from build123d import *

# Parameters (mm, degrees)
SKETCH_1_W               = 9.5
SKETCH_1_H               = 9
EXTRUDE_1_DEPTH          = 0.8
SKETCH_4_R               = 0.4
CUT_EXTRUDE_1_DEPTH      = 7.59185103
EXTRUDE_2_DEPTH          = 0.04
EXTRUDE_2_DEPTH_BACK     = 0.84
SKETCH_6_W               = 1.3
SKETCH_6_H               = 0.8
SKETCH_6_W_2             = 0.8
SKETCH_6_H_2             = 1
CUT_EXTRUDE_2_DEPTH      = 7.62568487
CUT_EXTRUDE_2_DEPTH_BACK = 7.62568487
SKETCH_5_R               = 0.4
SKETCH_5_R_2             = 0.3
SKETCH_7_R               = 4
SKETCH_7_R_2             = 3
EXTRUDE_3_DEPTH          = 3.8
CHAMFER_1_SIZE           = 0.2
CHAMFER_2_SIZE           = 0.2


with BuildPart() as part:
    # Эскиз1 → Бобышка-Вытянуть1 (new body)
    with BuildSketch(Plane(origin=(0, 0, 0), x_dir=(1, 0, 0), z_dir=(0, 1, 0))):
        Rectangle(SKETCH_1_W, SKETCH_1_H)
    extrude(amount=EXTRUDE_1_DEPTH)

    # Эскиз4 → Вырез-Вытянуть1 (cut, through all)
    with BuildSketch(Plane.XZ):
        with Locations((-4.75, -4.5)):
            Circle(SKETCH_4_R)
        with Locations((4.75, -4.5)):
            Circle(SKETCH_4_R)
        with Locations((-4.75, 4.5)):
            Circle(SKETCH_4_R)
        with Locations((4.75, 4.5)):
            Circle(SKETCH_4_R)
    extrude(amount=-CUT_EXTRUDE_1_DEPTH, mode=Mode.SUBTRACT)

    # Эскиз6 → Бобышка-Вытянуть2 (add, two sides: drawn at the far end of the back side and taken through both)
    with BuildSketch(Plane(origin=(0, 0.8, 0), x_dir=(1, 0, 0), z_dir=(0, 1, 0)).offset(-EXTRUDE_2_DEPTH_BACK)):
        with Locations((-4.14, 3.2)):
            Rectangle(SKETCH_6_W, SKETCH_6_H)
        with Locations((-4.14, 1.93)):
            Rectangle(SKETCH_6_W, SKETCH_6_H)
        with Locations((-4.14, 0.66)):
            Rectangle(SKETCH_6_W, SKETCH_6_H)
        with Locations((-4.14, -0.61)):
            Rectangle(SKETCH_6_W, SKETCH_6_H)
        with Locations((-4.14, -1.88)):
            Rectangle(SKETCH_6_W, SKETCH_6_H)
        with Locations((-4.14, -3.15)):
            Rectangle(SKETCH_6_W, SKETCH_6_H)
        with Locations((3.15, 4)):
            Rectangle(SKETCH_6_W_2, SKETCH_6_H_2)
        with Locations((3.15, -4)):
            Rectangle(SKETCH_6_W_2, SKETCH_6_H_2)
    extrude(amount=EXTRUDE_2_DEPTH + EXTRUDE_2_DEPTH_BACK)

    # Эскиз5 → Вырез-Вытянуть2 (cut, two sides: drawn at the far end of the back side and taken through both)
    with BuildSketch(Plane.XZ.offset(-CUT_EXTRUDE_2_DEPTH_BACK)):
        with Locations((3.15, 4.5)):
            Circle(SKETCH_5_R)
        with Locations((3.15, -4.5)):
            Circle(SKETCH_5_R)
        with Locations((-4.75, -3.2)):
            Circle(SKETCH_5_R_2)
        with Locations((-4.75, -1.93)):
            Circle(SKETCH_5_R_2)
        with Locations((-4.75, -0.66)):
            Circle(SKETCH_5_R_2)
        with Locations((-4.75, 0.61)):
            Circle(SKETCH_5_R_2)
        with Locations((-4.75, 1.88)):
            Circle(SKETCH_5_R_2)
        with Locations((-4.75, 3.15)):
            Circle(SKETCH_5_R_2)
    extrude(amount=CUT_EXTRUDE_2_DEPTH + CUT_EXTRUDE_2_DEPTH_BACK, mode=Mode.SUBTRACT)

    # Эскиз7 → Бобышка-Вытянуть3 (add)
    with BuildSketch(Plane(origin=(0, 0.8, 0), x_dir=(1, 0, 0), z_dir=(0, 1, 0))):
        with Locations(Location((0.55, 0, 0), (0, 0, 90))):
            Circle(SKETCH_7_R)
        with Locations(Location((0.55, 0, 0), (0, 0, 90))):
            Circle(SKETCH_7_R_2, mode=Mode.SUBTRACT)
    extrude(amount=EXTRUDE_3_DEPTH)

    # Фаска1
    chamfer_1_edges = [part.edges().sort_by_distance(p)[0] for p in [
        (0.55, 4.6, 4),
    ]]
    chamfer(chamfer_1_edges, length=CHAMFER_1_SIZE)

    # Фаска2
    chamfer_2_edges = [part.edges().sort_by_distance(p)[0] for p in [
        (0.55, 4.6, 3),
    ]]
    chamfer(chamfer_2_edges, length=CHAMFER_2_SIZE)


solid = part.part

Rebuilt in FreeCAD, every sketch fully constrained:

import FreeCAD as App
import Part
import Sketcher

V = App.Vector
Q = App.Units.Quantity


def edges_at(feature, points):
    """Names of the edges that pass closest to the given points."""
    edges = feature.Shape.Edges
    near = lambda p: min(range(len(edges)), key=lambda i: edges[i].distToShape(Part.Vertex(*p))[0])
    return sorted({f"Edge{near(p) + 1}" for p in points})


def add_polygon(sketch, points):
    """Adds a closed chain of lines whose ends are joined by coincident constraints."""
    first, n = sketch.GeometryCount, len(points)
    for a, b in zip(points, points[1:] + points[:1]):
        sketch.addGeometry(Part.LineSegment(App.Vector(*a, 0), App.Vector(*b, 0)), False)
    for i in range(n):
        sketch.addConstraint(Sketcher.Constraint("Coincident", first + i, 2, first + (i + 1) % n, 1))

doc = App.newDocument("Part")
body = doc.addObject("PartDesign::Body", "Body")

sketch1 = doc.addObject("Sketcher::SketchObject", "Sketch")
body.addObject(sketch1)
sketch1.AttachmentSupport = (doc.XZ_Plane, [""])
sketch1.MapMode = "FlatFace"
add_polygon(sketch1, [(-5, -4), (-5, 4), (5, 4), (5, -4)])
sketch1.addConstraint(Sketcher.Constraint("Vertical", 0))
sketch1.addConstraint(Sketcher.Constraint("Horizontal", 1))
sketch1.addConstraint(Sketcher.Constraint("Vertical", 2))
sketch1.addConstraint(Sketcher.Constraint("Horizontal", 3))
sketch1.addConstraint(Sketcher.Constraint("Symmetric", 0, 2, 2, 2, -1, 1))
sketch1.addConstraint(Sketcher.Constraint("DistanceY", 0, 1, 0, 2, Q("9 mm")))
sketch1.addConstraint(Sketcher.Constraint("DistanceX", 1, 1, 1, 2, Q("9.5 mm")))
pad1 = doc.addObject("PartDesign::Pad", "Pad")
body.addObject(pad1)
pad1.Profile = sketch1
pad1.Length = 0.8
pad1.Reversed = True

sketch2 = doc.addObject("Sketcher::SketchObject", "Sketch001")
body.addObject(sketch2)
sketch2.AttachmentSupport = (doc.XZ_Plane, [""])
sketch2.MapMode = "FlatFace"
sketch2.addGeometry(Part.Circle(V(-4.75, -4.5, 0), V(0, 0, 1), 0.4), False)
sketch2.addGeometry(Part.Circle(V(4.75, -4.5, 0), V(0, 0, 1), 0.4), False)
sketch2.addGeometry(Part.Circle(V(-4.75, 4.5, 0), V(0, 0, 1), 0.4), False)
sketch2.addGeometry(Part.Circle(V(4.75, 4.5, 0), V(0, 0, 1), 0.4), False)
sketch2.addConstraint(Sketcher.Constraint("Equal", 0, 1))
sketch2.addConstraint(Sketcher.Constraint("Equal", 1, 2))
sketch2.addConstraint(Sketcher.Constraint("Equal", 2, 3))
sketch2.addConstraint(Sketcher.Constraint("Symmetric", 1, 3, 2, 3, -1, 1))
sketch2.addConstraint(Sketcher.Constraint("Symmetric", 0, 3, 3, 3, -1, 1))
sketch2.addConstraint(Sketcher.Constraint("Symmetric", 0, 3, 1, 3, -2))
sketch2.addConstraint(Sketcher.Constraint("Diameter", 0, Q("0.8 mm")))
sketch2.addConstraint(Sketcher.Constraint("DistanceY", 0, 3, 2, 3, Q("9 mm")))
sketch2.addConstraint(Sketcher.Constraint("DistanceX", 0, 3, 1, 3, Q("9.5 mm")))
pocket1 = doc.addObject("PartDesign::Pocket", "Pocket")
body.addObject(pocket1)
pocket1.Profile = sketch2
pocket1.Type = "ThroughAll"

sketch3 = doc.addObject("Sketcher::SketchObject", "Sketch002")
body.addObject(sketch3)
sketch3.AttachmentSupport = (doc.XZ_Plane, [""])
sketch3.MapMode = "FlatFace"
sketch3.AttachmentOffset = App.Placement(V(0, 0, -0.8), App.Rotation())
add_polygon(sketch3, [(-4.8, -3.6), (-4.8, -2.8), (-3.5, -2.8), (-3.5, -3.6)])
add_polygon(sketch3, [(-4.8, -2.3), (-4.8, -1.5), (-3.5, -1.5), (-3.5, -2.3)])
add_polygon(sketch3, [(-4.8, -1.1), (-4.8, -0.3), (-3.5, -0.3), (-3.5, -1.1)])
add_polygon(sketch3, [(-4.8, 0.2), (-4.8, 1), (-3.5, 1), (-3.5, 0.2)])
add_polygon(sketch3, [(-4.8, 1.5), (-4.8, 2.3), (-3.5, 2.3), (-3.5, 1.5)])
add_polygon(sketch3, [(-4.8, 2.8), (-4.8, 3.5), (-3.5, 3.5), (-3.5, 2.8)])
add_polygon(sketch3, [(2.8, -4.5), (2.8, -3.5), (3.5, -3.5), (3.5, -4.5)])
add_polygon(sketch3, [(2.8, 3.5), (2.8, 4.5), (3.5, 4.5), (3.5, 3.5)])
sketch3.addConstraint(Sketcher.Constraint("Vertical", 0))
sketch3.addConstraint(Sketcher.Constraint("Horizontal", 1))
sketch3.addConstraint(Sketcher.Constraint("Vertical", 2))
sketch3.addConstraint(Sketcher.Constraint("Horizontal", 3))
sketch3.addConstraint(Sketcher.Constraint("Vertical", 4))
sketch3.addConstraint(Sketcher.Constraint("Horizontal", 5))
sketch3.addConstraint(Sketcher.Constraint("Vertical", 6))
sketch3.addConstraint(Sketcher.Constraint("Horizontal", 7))
sketch3.addConstraint(Sketcher.Constraint("Vertical", 8))
sketch3.addConstraint(Sketcher.Constraint("Horizontal", 9))
sketch3.addConstraint(Sketcher.Constraint("Vertical", 10))
sketch3.addConstraint(Sketcher.Constraint("Horizontal", 11))
sketch3.addConstraint(Sketcher.Constraint("Vertical", 12))
sketch3.addConstraint(Sketcher.Constraint("Horizontal", 13))
sketch3.addConstraint(Sketcher.Constraint("Vertical", 14))
sketch3.addConstraint(Sketcher.Constraint("Horizontal", 15))
sketch3.addConstraint(Sketcher.Constraint("Vertical", 16))
sketch3.addConstraint(Sketcher.Constraint("Horizontal", 17))
sketch3.addConstraint(Sketcher.Constraint("Vertical", 18))
sketch3.addConstraint(Sketcher.Constraint("Horizontal", 19))
sketch3.addConstraint(Sketcher.Constraint("Vertical", 20))
sketch3.addConstraint(Sketcher.Constraint("Horizontal", 21))
sketch3.addConstraint(Sketcher.Constraint("Vertical", 22))
sketch3.addConstraint(Sketcher.Constraint("Horizontal", 23))
sketch3.addConstraint(Sketcher.Constraint("Vertical", 24))
sketch3.addConstraint(Sketcher.Constraint("Horizontal", 25))
sketch3.addConstraint(Sketcher.Constraint("Vertical", 26))
sketch3.addConstraint(Sketcher.Constraint("Horizontal", 27))
sketch3.addConstraint(Sketcher.Constraint("Vertical", 28))
sketch3.addConstraint(Sketcher.Constraint("Horizontal", 29))
sketch3.addConstraint(Sketcher.Constraint("Vertical", 30))
sketch3.addConstraint(Sketcher.Constraint("Horizontal", 31))
sketch3.addConstraint(Sketcher.Constraint("Symmetric", 27, 2, 28, 2, -1))
sketch3.addConstraint(Sketcher.Constraint("Symmetric", 25, 2, 30, 2, -1))
sketch3.addConstraint(Sketcher.Constraint("Vertical", 3, 2, 4, 2))
sketch3.addConstraint(Sketcher.Constraint("Vertical", 2, 2, 5, 2))
sketch3.addConstraint(Sketcher.Constraint("Vertical", 7, 2, 8, 2))
sketch3.addConstraint(Sketcher.Constraint("Vertical", 6, 2, 9, 2))
sketch3.addConstraint(Sketcher.Constraint("Vertical", 11, 2, 12, 2))
sketch3.addConstraint(Sketcher.Constraint("Vertical", 10, 2, 13, 2))
sketch3.addConstraint(Sketcher.Constraint("Vertical", 15, 2, 16, 2))
sketch3.addConstraint(Sketcher.Constraint("Vertical", 14, 2, 17, 2))
sketch3.addConstraint(Sketcher.Constraint("Vertical", 19, 2, 20, 2))
sketch3.addConstraint(Sketcher.Constraint("Vertical", 18, 2, 21, 2))
sketch3.addConstraint(Sketcher.Constraint("Equal", 31, 0))
sketch3.addConstraint(Sketcher.Constraint("Equal", 2, 4))
sketch3.addConstraint(Sketcher.Constraint("Equal", 6, 8))
sketch3.addConstraint(Sketcher.Constraint("Equal", 10, 12))
sketch3.addConstraint(Sketcher.Constraint("Equal", 14, 16))
sketch3.addConstraint(Sketcher.Constraint("Equal", 18, 20))
sketch3.addConstraint(Sketcher.Constraint("DistanceY", 24, 1, 24, 2, Q("1 mm")))
sketch3.addConstraint(Sketcher.Constraint("DistanceX", 1, 1, 1, 2, Q("1.3 mm")))
sketch3.addConstraint(Sketcher.Constraint("DistanceX", 25, 1, 25, 2, Q("0.8 mm")))
sketch3.addConstraint(Sketcher.Constraint("DistanceY", 25, 2, 30, 2, Q("7 mm")))
sketch3.addConstraint(Sketcher.Constraint("DistanceY", 0, 2, -1, 1, Q("2.8 mm")))
sketch3.addConstraint(Sketcher.Constraint("DistanceX", 0, 2, -1, 1, Q("4.79 mm")))
sketch3.addConstraint(Sketcher.Constraint("DistanceY", 4, 2, -1, 1, Q("1.53 mm")))
sketch3.addConstraint(Sketcher.Constraint("DistanceY", 8, 2, -1, 1, Q("0.26 mm")))
sketch3.addConstraint(Sketcher.Constraint("DistanceY", -1, 1, 12, 2, Q("1.01 mm")))
sketch3.addConstraint(Sketcher.Constraint("DistanceY", -1, 1, 16, 2, Q("2.28 mm")))
sketch3.addConstraint(Sketcher.Constraint("DistanceY", -1, 1, 20, 2, Q("3.55 mm")))
sketch3.addConstraint(Sketcher.Constraint("DistanceX", -1, 1, 24, 2, Q("2.75 mm")))
pad2 = doc.addObject("PartDesign::Pad", "Pad001")
body.addObject(pad2)
pad2.Profile = sketch3
pad2.Type = "TwoLengths"
pad2.Length = 0.04
pad2.Length2 = 0.84
pad2.Reversed = True

sketch4 = doc.addObject("Sketcher::SketchObject", "Sketch003")
body.addObject(sketch4)
sketch4.AttachmentSupport = (doc.XZ_Plane, [""])
sketch4.MapMode = "FlatFace"
sketch4.addGeometry(Part.Circle(V(3.15, 4.5, 0), V(0, 0, 1), 0.4), False)
sketch4.addGeometry(Part.Circle(V(3.15, -4.5, 0), V(0, 0, 1), 0.4), False)
sketch4.addGeometry(Part.Circle(V(-4.75, -3.2, 0), V(0, 0, 1), 0.3), False)
sketch4.addGeometry(Part.Circle(V(-4.75, -1.93, 0), V(0, 0, 1), 0.3), False)
sketch4.addGeometry(Part.Circle(V(-4.75, -0.66, 0), V(0, 0, 1), 0.3), False)
sketch4.addGeometry(Part.Circle(V(-4.75, 0.61, 0), V(0, 0, 1), 0.3), False)
sketch4.addGeometry(Part.Circle(V(-4.75, 1.88, 0), V(0, 0, 1), 0.3), False)
sketch4.addGeometry(Part.Circle(V(-4.75, 3.15, 0), V(0, 0, 1), 0.3), False)
sketch4.addConstraint(Sketcher.Constraint("Equal", 0, 1))
sketch4.addConstraint(Sketcher.Constraint("Equal", 2, 3))
sketch4.addConstraint(Sketcher.Constraint("Equal", 3, 4))
sketch4.addConstraint(Sketcher.Constraint("Equal", 4, 5))
sketch4.addConstraint(Sketcher.Constraint("Equal", 5, 6))
sketch4.addConstraint(Sketcher.Constraint("Equal", 6, 7))
sketch4.addConstraint(Sketcher.Constraint("Symmetric", 0, 3, 1, 3, -1))
sketch4.addConstraint(Sketcher.Constraint("Vertical", 2, 3, 3, 3))
sketch4.addConstraint(Sketcher.Constraint("Vertical", 3, 3, 4, 3))
sketch4.addConstraint(Sketcher.Constraint("Vertical", 4, 3, 5, 3))
sketch4.addConstraint(Sketcher.Constraint("Vertical", 5, 3, 6, 3))
sketch4.addConstraint(Sketcher.Constraint("Vertical", 6, 3, 7, 3))
sketch4.addConstraint(Sketcher.Constraint("Diameter", 0, Q("0.8 mm")))
sketch4.addConstraint(Sketcher.Constraint("Diameter", 2, Q("0.6 mm")))
sketch4.addConstraint(Sketcher.Constraint("DistanceY", 1, 3, 0, 3, Q("9 mm")))
sketch4.addConstraint(Sketcher.Constraint("DistanceY", 2, 3, -1, 1, Q("3.2 mm")))
sketch4.addConstraint(Sketcher.Constraint("DistanceX", 2, 3, 1, 3, Q("7.9 mm")))
sketch4.addConstraint(Sketcher.Constraint("DistanceX", -1, 1, 0, 3, Q("3.15 mm")))
sketch4.addConstraint(Sketcher.Constraint("DistanceY", 3, 3, -1, 1, Q("1.93 mm")))
sketch4.addConstraint(Sketcher.Constraint("DistanceY", 4, 3, -1, 1, Q("0.66 mm")))
sketch4.addConstraint(Sketcher.Constraint("DistanceY", -1, 1, 5, 3, Q("0.61 mm")))
sketch4.addConstraint(Sketcher.Constraint("DistanceY", -1, 1, 6, 3, Q("1.88 mm")))
sketch4.addConstraint(Sketcher.Constraint("DistanceY", -1, 1, 7, 3, Q("3.15 mm")))
pocket2 = doc.addObject("PartDesign::Pocket", "Pocket001")
body.addObject(pocket2)
pocket2.Profile = sketch4
pocket2.Type = "ThroughAll"
pocket2.Midplane = True

sketch5 = doc.addObject("Sketcher::SketchObject", "Sketch004")
body.addObject(sketch5)
sketch5.AttachmentSupport = (doc.XZ_Plane, [""])
sketch5.MapMode = "FlatFace"
sketch5.AttachmentOffset = App.Placement(V(0, 0, -0.8), App.Rotation())
sketch5.addGeometry(Part.Circle(V(0.6, 0, 0), V(0, 0, 1), 4), False)
sketch5.addGeometry(Part.Circle(V(0.6, 0, 0), V(0, 0, 1), 3), False)
sketch5.addConstraint(Sketcher.Constraint("Coincident", 1, 3, 0, 3))
sketch5.addConstraint(Sketcher.Constraint("PointOnObject", 0, 3, -1))
sketch5.addConstraint(Sketcher.Constraint("Diameter", 0, Q("8 mm")))
sketch5.addConstraint(Sketcher.Constraint("Diameter", 1, Q("6 mm")))
sketch5.addConstraint(Sketcher.Constraint("DistanceX", -1, 1, 0, 3, Q("0.55 mm")))
pad3 = doc.addObject("PartDesign::Pad", "Pad002")
body.addObject(pad3)
pad3.Profile = sketch5
pad3.Length = 3.8
pad3.Reversed = True
doc.recompute()

chamfer = doc.addObject("PartDesign::Chamfer", "Chamfer")
body.addObject(chamfer)
chamfer.Base = (pad3, edges_at(pad3, [(0.55, 4.6, 4)]))
chamfer.Size = 0.2
doc.recompute()

chamfer2 = doc.addObject("PartDesign::Chamfer", "Chamfer001")
body.addObject(chamfer2)
chamfer2.Base = (chamfer, edges_at(chamfer, [(0.55, 4.6, 3)]))
chamfer2.Size = 0.2

doc.recompute()
